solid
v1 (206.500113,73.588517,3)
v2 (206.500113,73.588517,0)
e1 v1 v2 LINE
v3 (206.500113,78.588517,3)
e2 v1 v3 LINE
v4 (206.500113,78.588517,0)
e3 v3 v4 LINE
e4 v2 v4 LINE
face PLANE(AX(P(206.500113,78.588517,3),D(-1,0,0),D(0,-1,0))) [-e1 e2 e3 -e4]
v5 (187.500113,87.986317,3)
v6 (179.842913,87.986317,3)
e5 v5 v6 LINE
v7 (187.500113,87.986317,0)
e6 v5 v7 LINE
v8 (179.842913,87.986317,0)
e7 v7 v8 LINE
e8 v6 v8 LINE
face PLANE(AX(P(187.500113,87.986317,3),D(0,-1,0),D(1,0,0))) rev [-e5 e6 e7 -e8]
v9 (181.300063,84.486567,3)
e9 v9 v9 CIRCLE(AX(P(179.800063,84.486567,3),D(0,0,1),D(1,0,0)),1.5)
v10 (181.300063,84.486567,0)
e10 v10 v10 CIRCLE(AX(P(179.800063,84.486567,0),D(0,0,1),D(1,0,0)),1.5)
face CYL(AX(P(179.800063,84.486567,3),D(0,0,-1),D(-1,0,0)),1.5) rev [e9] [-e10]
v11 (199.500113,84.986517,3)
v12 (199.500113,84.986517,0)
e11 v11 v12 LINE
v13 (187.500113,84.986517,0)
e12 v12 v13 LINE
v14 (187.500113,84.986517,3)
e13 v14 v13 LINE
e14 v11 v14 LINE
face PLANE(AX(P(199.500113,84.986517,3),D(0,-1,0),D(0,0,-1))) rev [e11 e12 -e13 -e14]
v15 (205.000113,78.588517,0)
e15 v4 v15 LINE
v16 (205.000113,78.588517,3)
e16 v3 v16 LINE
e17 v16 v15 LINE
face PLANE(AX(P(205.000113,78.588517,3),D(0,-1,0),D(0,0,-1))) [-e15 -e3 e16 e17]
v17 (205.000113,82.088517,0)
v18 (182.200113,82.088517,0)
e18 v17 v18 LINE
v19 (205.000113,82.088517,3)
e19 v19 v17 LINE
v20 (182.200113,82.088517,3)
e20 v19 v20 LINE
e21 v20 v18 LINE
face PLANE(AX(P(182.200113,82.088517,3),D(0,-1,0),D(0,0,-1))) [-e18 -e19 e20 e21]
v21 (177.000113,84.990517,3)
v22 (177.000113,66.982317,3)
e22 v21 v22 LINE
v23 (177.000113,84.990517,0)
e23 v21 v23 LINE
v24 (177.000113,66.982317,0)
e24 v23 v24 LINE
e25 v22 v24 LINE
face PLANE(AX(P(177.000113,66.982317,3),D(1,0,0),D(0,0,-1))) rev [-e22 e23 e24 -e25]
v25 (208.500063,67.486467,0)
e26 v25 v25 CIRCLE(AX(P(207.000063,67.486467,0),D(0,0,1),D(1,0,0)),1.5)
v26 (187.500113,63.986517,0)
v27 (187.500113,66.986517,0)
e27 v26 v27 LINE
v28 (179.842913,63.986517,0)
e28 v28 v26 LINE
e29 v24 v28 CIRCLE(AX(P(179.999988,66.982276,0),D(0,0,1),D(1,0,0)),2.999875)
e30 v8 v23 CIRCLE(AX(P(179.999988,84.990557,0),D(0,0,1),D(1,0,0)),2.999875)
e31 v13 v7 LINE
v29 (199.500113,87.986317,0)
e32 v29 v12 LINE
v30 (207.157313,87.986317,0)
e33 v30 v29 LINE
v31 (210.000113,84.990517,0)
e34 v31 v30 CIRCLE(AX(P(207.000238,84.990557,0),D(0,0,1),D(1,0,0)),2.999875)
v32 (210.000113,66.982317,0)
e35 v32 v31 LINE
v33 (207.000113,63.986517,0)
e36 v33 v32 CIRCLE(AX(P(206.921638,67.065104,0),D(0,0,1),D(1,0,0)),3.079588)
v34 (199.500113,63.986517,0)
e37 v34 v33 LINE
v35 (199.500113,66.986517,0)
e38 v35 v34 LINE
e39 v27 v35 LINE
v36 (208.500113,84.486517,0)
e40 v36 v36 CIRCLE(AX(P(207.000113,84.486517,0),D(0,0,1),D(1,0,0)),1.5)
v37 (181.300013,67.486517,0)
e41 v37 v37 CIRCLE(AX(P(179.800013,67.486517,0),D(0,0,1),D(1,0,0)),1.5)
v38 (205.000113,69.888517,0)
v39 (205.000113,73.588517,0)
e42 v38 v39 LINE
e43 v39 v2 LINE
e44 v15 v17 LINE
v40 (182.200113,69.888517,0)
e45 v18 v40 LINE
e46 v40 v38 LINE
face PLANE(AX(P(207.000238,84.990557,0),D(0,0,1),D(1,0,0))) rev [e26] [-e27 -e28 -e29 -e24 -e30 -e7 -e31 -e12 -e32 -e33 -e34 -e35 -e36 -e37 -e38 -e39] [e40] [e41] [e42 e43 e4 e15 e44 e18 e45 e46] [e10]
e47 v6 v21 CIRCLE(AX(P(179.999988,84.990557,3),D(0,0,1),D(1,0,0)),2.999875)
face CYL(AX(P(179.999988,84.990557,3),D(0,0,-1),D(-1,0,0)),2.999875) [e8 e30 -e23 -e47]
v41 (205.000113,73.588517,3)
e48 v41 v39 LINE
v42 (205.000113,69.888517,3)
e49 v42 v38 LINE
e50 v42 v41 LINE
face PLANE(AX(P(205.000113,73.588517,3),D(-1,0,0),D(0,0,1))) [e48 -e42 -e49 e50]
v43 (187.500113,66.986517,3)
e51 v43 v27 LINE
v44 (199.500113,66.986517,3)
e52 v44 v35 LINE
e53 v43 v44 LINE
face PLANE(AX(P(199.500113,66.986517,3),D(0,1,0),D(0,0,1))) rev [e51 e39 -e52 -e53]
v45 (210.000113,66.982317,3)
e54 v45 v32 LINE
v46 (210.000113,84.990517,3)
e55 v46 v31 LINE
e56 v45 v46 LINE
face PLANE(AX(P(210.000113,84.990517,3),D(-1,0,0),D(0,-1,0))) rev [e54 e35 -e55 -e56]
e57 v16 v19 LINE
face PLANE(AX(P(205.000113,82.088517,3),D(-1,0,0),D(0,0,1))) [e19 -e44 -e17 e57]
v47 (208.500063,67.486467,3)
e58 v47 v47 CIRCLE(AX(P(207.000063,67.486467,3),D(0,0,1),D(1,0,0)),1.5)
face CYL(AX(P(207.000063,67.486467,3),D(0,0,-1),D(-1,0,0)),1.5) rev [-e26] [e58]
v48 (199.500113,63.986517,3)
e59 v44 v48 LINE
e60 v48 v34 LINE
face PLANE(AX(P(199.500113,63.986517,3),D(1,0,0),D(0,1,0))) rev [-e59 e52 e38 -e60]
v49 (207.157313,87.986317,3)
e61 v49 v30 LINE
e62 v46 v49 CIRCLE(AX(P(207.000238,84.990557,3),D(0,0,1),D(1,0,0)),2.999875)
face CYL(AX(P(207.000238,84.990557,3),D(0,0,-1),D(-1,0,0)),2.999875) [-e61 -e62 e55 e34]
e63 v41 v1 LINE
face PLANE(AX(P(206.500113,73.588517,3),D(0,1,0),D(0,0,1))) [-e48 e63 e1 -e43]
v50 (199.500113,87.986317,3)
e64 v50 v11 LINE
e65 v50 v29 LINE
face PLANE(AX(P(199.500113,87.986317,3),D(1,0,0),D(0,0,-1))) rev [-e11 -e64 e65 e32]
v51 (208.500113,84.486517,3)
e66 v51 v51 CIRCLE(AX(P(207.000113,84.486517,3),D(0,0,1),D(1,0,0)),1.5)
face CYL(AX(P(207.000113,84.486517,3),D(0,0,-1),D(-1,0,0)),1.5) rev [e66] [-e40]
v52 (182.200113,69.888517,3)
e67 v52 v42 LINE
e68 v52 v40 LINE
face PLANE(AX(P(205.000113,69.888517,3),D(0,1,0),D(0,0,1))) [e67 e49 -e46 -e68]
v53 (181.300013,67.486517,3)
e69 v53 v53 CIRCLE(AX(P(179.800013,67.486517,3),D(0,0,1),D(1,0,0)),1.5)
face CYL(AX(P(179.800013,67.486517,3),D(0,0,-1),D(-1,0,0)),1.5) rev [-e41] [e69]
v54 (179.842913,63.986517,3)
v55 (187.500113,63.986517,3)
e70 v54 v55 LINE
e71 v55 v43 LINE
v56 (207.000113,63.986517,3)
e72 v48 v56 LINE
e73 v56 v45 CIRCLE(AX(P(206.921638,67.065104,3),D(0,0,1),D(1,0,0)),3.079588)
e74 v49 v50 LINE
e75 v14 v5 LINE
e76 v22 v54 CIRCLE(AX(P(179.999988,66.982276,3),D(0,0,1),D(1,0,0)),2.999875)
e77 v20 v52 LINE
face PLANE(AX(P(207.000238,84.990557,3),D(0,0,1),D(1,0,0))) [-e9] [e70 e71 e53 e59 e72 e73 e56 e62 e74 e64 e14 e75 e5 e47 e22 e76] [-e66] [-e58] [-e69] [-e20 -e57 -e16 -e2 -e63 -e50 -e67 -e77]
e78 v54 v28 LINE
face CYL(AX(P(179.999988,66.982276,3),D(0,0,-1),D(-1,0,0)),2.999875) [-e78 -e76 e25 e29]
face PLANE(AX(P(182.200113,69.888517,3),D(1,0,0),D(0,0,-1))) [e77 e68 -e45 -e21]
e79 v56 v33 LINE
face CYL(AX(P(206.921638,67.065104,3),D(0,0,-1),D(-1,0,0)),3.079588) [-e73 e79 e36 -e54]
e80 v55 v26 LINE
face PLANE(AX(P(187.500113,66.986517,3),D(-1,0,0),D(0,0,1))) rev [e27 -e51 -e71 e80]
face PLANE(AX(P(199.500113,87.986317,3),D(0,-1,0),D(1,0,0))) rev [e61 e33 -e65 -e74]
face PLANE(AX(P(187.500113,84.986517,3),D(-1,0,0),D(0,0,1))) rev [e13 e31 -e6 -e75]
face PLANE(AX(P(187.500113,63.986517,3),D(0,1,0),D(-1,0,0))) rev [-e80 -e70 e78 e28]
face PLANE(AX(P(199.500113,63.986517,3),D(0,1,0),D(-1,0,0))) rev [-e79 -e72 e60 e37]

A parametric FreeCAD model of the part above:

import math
import FreeCAD as App
import Part
import Sketcher
from FreeCAD import Vector

doc = App.newDocument("Part")
body = doc.addObject("PartDesign::Body", "Body")

sketch1 = body.newObject("Sketcher::SketchObject", "Sketch")
sketch1.AttachmentSupport = (doc.getObject("XY_Plane"), [""])
sketch1.MapMode = "FlatFace"
sketch1.addGeometry(Part.LineSegment(Vector(199.500113, 87.986317, 0), Vector(199.500113, 84.986517, 0)), False)
sketch1.addGeometry(Part.LineSegment(Vector(199.500113, 84.986517, 0), Vector(187.500113, 84.986517, 0)), False)
sketch1.addGeometry(Part.LineSegment(Vector(187.500113, 84.986517, 0), Vector(187.500113, 87.986317, 0)), False)
sketch1.addGeometry(Part.LineSegment(Vector(187.500113, 87.986317, 0), Vector(179.842913, 87.986317, 0)), False)
sketch1.addGeometry(Part.ArcOfCircle(Part.Circle(Vector(179.999988, 84.990557, 0), Vector(0, 0, 1), 2.999875), math.radians(93.001407), math.radians(180.000768)), False)
sketch1.addGeometry(Part.LineSegment(Vector(177.000113, 84.990517, 0), Vector(177.000113, 66.982317, 0)), False)
sketch1.addGeometry(Part.ArcOfCircle(Part.Circle(Vector(179.999988, 66.982276, 0), Vector(0, 0, 1), 2.999875), math.radians(179.999232), math.radians(266.998593)), False)
sketch1.addGeometry(Part.LineSegment(Vector(179.842913, 63.986517, 0), Vector(187.500113, 63.986517, 0)), False)
sketch1.addGeometry(Part.LineSegment(Vector(187.500113, 63.986517, 0), Vector(187.500113, 66.986517, 0)), False)
sketch1.addGeometry(Part.LineSegment(Vector(187.500113, 66.986517, 0), Vector(199.500113, 66.986517, 0)), False)
sketch1.addGeometry(Part.LineSegment(Vector(199.500113, 66.986517, 0), Vector(199.500113, 63.986517, 0)), False)
sketch1.addGeometry(Part.LineSegment(Vector(199.500113, 63.986517, 0), Vector(207.000113, 63.986517, 0)), False)
sketch1.addGeometry(Part.ArcOfCircle(Part.Circle(Vector(206.921638, 67.065104, 0), Vector(0, 0, 1), 3.079588), math.radians(-88.539815), math.radians(-1.540455)), False)
sketch1.addGeometry(Part.LineSegment(Vector(210.000113, 66.982317, 0), Vector(210.000113, 84.990517, 0)), False)
sketch1.addGeometry(Part.ArcOfCircle(Part.Circle(Vector(207.000238, 84.990557, 0), Vector(0, 0, 1), 2.999875), math.radians(-0.000768), math.radians(86.998593)), False)
sketch1.addGeometry(Part.LineSegment(Vector(207.157313, 87.986317, 0), Vector(199.500113, 87.986317, 0)), False)
sketch1.addGeometry(Part.Circle(Vector(179.800013, 67.486517, 0), Vector(0, 0, 1), 1.5), False)
sketch1.addGeometry(Part.Circle(Vector(207.000063, 67.486467, 0), Vector(0, 0, 1), 1.5), False)
sketch1.addGeometry(Part.Circle(Vector(179.800063, 84.486567, 0), Vector(0, 0, 1), 1.5), False)
sketch1.addGeometry(Part.LineSegment(Vector(206.500113, 73.588517, 0), Vector(205.000113, 73.588517, 0)), False)
sketch1.addGeometry(Part.LineSegment(Vector(205.000113, 73.588517, 0), Vector(205.000113, 69.888517, 0)), False)
sketch1.addGeometry(Part.LineSegment(Vector(205.000113, 69.888517, 0), Vector(182.200113, 69.888517, 0)), False)
sketch1.addGeometry(Part.LineSegment(Vector(182.200113, 69.888517, 0), Vector(182.200113, 82.088517, 0)), False)
sketch1.addGeometry(Part.LineSegment(Vector(182.200113, 82.088517, 0), Vector(205.000113, 82.088517, 0)), False)
sketch1.addGeometry(Part.LineSegment(Vector(205.000113, 82.088517, 0), Vector(205.000113, 78.588517, 0)), False)
sketch1.addGeometry(Part.LineSegment(Vector(205.000113, 78.588517, 0), Vector(206.500113, 78.588517, 0)), False)
sketch1.addGeometry(Part.LineSegment(Vector(206.500113, 78.588517, 0), Vector(206.500113, 73.588517, 0)), False)
sketch1.addGeometry(Part.Circle(Vector(207.000113, 84.486517, 0), Vector(0, 0, 1), 1.5), False)
sketch1.addConstraint(Sketcher.Constraint("Coincident", 0, 2, 1, 1))
sketch1.addConstraint(Sketcher.Constraint("Coincident", 1, 2, 2, 1))
sketch1.addConstraint(Sketcher.Constraint("Coincident", 2, 2, 3, 1))
sketch1.addConstraint(Sketcher.Constraint("Coincident", 3, 2, 4, 1))
sketch1.addConstraint(Sketcher.Constraint("Coincident", 4, 2, 5, 1))
sketch1.addConstraint(Sketcher.Constraint("Coincident", 5, 2, 6, 1))
sketch1.addConstraint(Sketcher.Constraint("Coincident", 6, 2, 7, 1))
sketch1.addConstraint(Sketcher.Constraint("Coincident", 7, 2, 8, 1))
sketch1.addConstraint(Sketcher.Constraint("Coincident", 8, 2, 9, 1))
sketch1.addConstraint(Sketcher.Constraint("Coincident", 9, 2, 10, 1))
sketch1.addConstraint(Sketcher.Constraint("Coincident", 10, 2, 11, 1))
sketch1.addConstraint(Sketcher.Constraint("Coincident", 11, 2, 12, 1))
sketch1.addConstraint(Sketcher.Constraint("Coincident", 12, 2, 13, 1))
sketch1.addConstraint(Sketcher.Constraint("Coincident", 13, 2, 14, 1))
sketch1.addConstraint(Sketcher.Constraint("Coincident", 14, 2, 15, 1))
sketch1.addConstraint(Sketcher.Constraint("Coincident", 15, 2, 0, 1))
sketch1.addConstraint(Sketcher.Constraint("Coincident", 19, 2, 20, 1))
sketch1.addConstraint(Sketcher.Constraint("Coincident", 20, 2, 21, 1))
sketch1.addConstraint(Sketcher.Constraint("Coincident", 21, 2, 22, 1))
sketch1.addConstraint(Sketcher.Constraint("Coincident", 22, 2, 23, 1))
sketch1.addConstraint(Sketcher.Constraint("Coincident", 23, 2, 24, 1))
sketch1.addConstraint(Sketcher.Constraint("Coincident", 24, 2, 25, 1))
sketch1.addConstraint(Sketcher.Constraint("Coincident", 25, 2, 26, 1))
sketch1.addConstraint(Sketcher.Constraint("Coincident", 26, 2, 19, 1))
sketch1.addConstraint(Sketcher.Constraint("Vertical", 0))
sketch1.addConstraint(Sketcher.Constraint("Horizontal", 1))
sketch1.addConstraint(Sketcher.Constraint("Vertical", 2))
sketch1.addConstraint(Sketcher.Constraint("Horizontal", 3))
sketch1.addConstraint(Sketcher.Constraint("Vertical", 5))
sketch1.addConstraint(Sketcher.Constraint("Horizontal", 7))
sketch1.addConstraint(Sketcher.Constraint("Vertical", 8))
sketch1.addConstraint(Sketcher.Constraint("Horizontal", 9))
sketch1.addConstraint(Sketcher.Constraint("Vertical", 10))
sketch1.addConstraint(Sketcher.Constraint("Horizontal", 11))
sketch1.addConstraint(Sketcher.Constraint("Vertical", 13))
sketch1.addConstraint(Sketcher.Constraint("Horizontal", 15))
sketch1.addConstraint(Sketcher.Constraint("Horizontal", 19))
sketch1.addConstraint(Sketcher.Constraint("Vertical", 20))
sketch1.addConstraint(Sketcher.Constraint("Horizontal", 21))
sketch1.addConstraint(Sketcher.Constraint("Vertical", 22))
sketch1.addConstraint(Sketcher.Constraint("Horizontal", 23))
sketch1.addConstraint(Sketcher.Constraint("Vertical", 24))
sketch1.addConstraint(Sketcher.Constraint("Horizontal", 25))
sketch1.addConstraint(Sketcher.Constraint("Vertical", 26))
sketch1.addConstraint(Sketcher.Constraint("Equal", 4, 6))
sketch1.addConstraint(Sketcher.Constraint("Equal", 6, 14))
sketch1.addConstraint(Sketcher.Constraint("Equal", 16, 17))
sketch1.addConstraint(Sketcher.Constraint("Equal", 17, 18))
sketch1.addConstraint(Sketcher.Constraint("Equal", 18, 27))
sketch1.addConstraint(Sketcher.Constraint("Horizontal", 4, 3, 14, 3))
sketch1.addConstraint(Sketcher.Constraint("Horizontal", 7, 2, 10, 2))
sketch1.addConstraint(Sketcher.Constraint("Horizontal", 5, 2, 12, 2))
sketch1.addConstraint(Sketcher.Constraint("Horizontal", 4, 2, 13, 2))
sketch1.addConstraint(Sketcher.Constraint("Horizontal", 3, 2, 14, 2))
sketch1.addConstraint(Sketcher.Constraint("Vertical", 3, 2, 6, 2))
sketch1.addConstraint(Sketcher.Constraint("Vertical", 2, 2, 7, 2))
sketch1.addConstraint(Sketcher.Constraint("Vertical", 0, 2, 9, 2))
sketch1.addConstraint(Sketcher.Constraint("Vertical", 27, 3, 11, 2))
sketch1.addConstraint(Sketcher.Constraint("Vertical", 20, 2, 23, 2))
sketch1.addConstraint(Sketcher.Constraint("Equal", 7, 15))
sketch1.addConstraint(Sketcher.Constraint("Diameter", 16, 3.0))
sketch1.addConstraint(Sketcher.Constraint("DistanceX", 1, 2, 1, 1, 12.0))
sketch1.addConstraint(Sketcher.Constraint("DistanceY", 8, 1, 8, 2, 3.0))
sketch1.addConstraint(Sketcher.Constraint("DistanceY", 26, 2, 26, 1, 5.0))
sketch1.addConstraint(Sketcher.Constraint("DistanceX", 11, 1, 11, 2, 7.5))
sketch1.addConstraint(Sketcher.Constraint("DistanceX", 19, 2, 19, 1, 1.5))
sketch1.addConstraint(Sketcher.Constraint("DistanceX", 21, 2, 21, 1, 22.8))
sketch1.addConstraint(Sketcher.Constraint("DistanceY", 20, 2, 20, 1, 3.7))
sketch1.addConstraint(Sketcher.Constraint("DistanceY", 22, 1, 22, 2, 12.2))
sketch1.addConstraint(Sketcher.Constraint("DistanceY", 9, 2, 0, 2, 18.0))
sketch1.addConstraint(Sketcher.Constraint("DistanceX", 11, 2, 12, 2, 3.0))
sketch1.addConstraint(Sketcher.Constraint("DistanceX", 19, 2, 12, 2, 5.0))
sketch1.addConstraint(Sketcher.Constraint("DistanceX", 18, 3, 17, 3, 27.2))
sketch1.addConstraint(Sketcher.Constraint("DistanceY", 27, 3, 0, 2, 0.5))
sketch1.addConstraint(Sketcher.Constraint("DistanceY", 16, 3, 1, 2, 17.5))
sketch1.addConstraint(Sketcher.Constraint("DistanceX", 3, 2, 3, 1, 7.6572))
sketch1.addConstraint(Sketcher.Constraint("DistanceY", 0, 2, 0, 1, 2.9998))
sketch1.addConstraint(Sketcher.Constraint("DistanceY", 5, 2, 5, 1, 18.0082))
sketch1.addConstraint(Sketcher.Constraint("Radius", 4, 2.999875))
sketch1.addConstraint(Sketcher.Constraint("Radius", 12, 3.079588))
sketch1.addConstraint(Sketcher.Constraint("DistanceY", 1, 2, 4, 2, 0.004))
sketch1.addConstraint(Sketcher.Constraint("DistanceY", 9, 2, 19, 2, 6.602))
sketch1.addConstraint(Sketcher.Constraint("DistanceY", 17, 3, 18, 3, 17.0001))
sketch1.addConstraint(Sketcher.Constraint("DistanceX", 16, 3, 1, 2, 7.7001))
sketch1.addConstraint(Sketcher.Constraint("DistanceY", 17, 3, 14, 3, 17.50409))
sketch1.addConstraint(Sketcher.Constraint("DistanceX", 16, 3, 17, 3, 27.20005))
sketch1.addConstraint(Sketcher.Constraint("DistanceX", -1, 1, 4, 3, 179.999988))
sketch1.addConstraint(Sketcher.Constraint("DistanceY", -1, 1, 4, 3, 84.990557))
pad1 = body.newObject("PartDesign::Pad", "Pad")
pad1.Profile = sketch1
pad1.Length = 3

doc.recompute()
